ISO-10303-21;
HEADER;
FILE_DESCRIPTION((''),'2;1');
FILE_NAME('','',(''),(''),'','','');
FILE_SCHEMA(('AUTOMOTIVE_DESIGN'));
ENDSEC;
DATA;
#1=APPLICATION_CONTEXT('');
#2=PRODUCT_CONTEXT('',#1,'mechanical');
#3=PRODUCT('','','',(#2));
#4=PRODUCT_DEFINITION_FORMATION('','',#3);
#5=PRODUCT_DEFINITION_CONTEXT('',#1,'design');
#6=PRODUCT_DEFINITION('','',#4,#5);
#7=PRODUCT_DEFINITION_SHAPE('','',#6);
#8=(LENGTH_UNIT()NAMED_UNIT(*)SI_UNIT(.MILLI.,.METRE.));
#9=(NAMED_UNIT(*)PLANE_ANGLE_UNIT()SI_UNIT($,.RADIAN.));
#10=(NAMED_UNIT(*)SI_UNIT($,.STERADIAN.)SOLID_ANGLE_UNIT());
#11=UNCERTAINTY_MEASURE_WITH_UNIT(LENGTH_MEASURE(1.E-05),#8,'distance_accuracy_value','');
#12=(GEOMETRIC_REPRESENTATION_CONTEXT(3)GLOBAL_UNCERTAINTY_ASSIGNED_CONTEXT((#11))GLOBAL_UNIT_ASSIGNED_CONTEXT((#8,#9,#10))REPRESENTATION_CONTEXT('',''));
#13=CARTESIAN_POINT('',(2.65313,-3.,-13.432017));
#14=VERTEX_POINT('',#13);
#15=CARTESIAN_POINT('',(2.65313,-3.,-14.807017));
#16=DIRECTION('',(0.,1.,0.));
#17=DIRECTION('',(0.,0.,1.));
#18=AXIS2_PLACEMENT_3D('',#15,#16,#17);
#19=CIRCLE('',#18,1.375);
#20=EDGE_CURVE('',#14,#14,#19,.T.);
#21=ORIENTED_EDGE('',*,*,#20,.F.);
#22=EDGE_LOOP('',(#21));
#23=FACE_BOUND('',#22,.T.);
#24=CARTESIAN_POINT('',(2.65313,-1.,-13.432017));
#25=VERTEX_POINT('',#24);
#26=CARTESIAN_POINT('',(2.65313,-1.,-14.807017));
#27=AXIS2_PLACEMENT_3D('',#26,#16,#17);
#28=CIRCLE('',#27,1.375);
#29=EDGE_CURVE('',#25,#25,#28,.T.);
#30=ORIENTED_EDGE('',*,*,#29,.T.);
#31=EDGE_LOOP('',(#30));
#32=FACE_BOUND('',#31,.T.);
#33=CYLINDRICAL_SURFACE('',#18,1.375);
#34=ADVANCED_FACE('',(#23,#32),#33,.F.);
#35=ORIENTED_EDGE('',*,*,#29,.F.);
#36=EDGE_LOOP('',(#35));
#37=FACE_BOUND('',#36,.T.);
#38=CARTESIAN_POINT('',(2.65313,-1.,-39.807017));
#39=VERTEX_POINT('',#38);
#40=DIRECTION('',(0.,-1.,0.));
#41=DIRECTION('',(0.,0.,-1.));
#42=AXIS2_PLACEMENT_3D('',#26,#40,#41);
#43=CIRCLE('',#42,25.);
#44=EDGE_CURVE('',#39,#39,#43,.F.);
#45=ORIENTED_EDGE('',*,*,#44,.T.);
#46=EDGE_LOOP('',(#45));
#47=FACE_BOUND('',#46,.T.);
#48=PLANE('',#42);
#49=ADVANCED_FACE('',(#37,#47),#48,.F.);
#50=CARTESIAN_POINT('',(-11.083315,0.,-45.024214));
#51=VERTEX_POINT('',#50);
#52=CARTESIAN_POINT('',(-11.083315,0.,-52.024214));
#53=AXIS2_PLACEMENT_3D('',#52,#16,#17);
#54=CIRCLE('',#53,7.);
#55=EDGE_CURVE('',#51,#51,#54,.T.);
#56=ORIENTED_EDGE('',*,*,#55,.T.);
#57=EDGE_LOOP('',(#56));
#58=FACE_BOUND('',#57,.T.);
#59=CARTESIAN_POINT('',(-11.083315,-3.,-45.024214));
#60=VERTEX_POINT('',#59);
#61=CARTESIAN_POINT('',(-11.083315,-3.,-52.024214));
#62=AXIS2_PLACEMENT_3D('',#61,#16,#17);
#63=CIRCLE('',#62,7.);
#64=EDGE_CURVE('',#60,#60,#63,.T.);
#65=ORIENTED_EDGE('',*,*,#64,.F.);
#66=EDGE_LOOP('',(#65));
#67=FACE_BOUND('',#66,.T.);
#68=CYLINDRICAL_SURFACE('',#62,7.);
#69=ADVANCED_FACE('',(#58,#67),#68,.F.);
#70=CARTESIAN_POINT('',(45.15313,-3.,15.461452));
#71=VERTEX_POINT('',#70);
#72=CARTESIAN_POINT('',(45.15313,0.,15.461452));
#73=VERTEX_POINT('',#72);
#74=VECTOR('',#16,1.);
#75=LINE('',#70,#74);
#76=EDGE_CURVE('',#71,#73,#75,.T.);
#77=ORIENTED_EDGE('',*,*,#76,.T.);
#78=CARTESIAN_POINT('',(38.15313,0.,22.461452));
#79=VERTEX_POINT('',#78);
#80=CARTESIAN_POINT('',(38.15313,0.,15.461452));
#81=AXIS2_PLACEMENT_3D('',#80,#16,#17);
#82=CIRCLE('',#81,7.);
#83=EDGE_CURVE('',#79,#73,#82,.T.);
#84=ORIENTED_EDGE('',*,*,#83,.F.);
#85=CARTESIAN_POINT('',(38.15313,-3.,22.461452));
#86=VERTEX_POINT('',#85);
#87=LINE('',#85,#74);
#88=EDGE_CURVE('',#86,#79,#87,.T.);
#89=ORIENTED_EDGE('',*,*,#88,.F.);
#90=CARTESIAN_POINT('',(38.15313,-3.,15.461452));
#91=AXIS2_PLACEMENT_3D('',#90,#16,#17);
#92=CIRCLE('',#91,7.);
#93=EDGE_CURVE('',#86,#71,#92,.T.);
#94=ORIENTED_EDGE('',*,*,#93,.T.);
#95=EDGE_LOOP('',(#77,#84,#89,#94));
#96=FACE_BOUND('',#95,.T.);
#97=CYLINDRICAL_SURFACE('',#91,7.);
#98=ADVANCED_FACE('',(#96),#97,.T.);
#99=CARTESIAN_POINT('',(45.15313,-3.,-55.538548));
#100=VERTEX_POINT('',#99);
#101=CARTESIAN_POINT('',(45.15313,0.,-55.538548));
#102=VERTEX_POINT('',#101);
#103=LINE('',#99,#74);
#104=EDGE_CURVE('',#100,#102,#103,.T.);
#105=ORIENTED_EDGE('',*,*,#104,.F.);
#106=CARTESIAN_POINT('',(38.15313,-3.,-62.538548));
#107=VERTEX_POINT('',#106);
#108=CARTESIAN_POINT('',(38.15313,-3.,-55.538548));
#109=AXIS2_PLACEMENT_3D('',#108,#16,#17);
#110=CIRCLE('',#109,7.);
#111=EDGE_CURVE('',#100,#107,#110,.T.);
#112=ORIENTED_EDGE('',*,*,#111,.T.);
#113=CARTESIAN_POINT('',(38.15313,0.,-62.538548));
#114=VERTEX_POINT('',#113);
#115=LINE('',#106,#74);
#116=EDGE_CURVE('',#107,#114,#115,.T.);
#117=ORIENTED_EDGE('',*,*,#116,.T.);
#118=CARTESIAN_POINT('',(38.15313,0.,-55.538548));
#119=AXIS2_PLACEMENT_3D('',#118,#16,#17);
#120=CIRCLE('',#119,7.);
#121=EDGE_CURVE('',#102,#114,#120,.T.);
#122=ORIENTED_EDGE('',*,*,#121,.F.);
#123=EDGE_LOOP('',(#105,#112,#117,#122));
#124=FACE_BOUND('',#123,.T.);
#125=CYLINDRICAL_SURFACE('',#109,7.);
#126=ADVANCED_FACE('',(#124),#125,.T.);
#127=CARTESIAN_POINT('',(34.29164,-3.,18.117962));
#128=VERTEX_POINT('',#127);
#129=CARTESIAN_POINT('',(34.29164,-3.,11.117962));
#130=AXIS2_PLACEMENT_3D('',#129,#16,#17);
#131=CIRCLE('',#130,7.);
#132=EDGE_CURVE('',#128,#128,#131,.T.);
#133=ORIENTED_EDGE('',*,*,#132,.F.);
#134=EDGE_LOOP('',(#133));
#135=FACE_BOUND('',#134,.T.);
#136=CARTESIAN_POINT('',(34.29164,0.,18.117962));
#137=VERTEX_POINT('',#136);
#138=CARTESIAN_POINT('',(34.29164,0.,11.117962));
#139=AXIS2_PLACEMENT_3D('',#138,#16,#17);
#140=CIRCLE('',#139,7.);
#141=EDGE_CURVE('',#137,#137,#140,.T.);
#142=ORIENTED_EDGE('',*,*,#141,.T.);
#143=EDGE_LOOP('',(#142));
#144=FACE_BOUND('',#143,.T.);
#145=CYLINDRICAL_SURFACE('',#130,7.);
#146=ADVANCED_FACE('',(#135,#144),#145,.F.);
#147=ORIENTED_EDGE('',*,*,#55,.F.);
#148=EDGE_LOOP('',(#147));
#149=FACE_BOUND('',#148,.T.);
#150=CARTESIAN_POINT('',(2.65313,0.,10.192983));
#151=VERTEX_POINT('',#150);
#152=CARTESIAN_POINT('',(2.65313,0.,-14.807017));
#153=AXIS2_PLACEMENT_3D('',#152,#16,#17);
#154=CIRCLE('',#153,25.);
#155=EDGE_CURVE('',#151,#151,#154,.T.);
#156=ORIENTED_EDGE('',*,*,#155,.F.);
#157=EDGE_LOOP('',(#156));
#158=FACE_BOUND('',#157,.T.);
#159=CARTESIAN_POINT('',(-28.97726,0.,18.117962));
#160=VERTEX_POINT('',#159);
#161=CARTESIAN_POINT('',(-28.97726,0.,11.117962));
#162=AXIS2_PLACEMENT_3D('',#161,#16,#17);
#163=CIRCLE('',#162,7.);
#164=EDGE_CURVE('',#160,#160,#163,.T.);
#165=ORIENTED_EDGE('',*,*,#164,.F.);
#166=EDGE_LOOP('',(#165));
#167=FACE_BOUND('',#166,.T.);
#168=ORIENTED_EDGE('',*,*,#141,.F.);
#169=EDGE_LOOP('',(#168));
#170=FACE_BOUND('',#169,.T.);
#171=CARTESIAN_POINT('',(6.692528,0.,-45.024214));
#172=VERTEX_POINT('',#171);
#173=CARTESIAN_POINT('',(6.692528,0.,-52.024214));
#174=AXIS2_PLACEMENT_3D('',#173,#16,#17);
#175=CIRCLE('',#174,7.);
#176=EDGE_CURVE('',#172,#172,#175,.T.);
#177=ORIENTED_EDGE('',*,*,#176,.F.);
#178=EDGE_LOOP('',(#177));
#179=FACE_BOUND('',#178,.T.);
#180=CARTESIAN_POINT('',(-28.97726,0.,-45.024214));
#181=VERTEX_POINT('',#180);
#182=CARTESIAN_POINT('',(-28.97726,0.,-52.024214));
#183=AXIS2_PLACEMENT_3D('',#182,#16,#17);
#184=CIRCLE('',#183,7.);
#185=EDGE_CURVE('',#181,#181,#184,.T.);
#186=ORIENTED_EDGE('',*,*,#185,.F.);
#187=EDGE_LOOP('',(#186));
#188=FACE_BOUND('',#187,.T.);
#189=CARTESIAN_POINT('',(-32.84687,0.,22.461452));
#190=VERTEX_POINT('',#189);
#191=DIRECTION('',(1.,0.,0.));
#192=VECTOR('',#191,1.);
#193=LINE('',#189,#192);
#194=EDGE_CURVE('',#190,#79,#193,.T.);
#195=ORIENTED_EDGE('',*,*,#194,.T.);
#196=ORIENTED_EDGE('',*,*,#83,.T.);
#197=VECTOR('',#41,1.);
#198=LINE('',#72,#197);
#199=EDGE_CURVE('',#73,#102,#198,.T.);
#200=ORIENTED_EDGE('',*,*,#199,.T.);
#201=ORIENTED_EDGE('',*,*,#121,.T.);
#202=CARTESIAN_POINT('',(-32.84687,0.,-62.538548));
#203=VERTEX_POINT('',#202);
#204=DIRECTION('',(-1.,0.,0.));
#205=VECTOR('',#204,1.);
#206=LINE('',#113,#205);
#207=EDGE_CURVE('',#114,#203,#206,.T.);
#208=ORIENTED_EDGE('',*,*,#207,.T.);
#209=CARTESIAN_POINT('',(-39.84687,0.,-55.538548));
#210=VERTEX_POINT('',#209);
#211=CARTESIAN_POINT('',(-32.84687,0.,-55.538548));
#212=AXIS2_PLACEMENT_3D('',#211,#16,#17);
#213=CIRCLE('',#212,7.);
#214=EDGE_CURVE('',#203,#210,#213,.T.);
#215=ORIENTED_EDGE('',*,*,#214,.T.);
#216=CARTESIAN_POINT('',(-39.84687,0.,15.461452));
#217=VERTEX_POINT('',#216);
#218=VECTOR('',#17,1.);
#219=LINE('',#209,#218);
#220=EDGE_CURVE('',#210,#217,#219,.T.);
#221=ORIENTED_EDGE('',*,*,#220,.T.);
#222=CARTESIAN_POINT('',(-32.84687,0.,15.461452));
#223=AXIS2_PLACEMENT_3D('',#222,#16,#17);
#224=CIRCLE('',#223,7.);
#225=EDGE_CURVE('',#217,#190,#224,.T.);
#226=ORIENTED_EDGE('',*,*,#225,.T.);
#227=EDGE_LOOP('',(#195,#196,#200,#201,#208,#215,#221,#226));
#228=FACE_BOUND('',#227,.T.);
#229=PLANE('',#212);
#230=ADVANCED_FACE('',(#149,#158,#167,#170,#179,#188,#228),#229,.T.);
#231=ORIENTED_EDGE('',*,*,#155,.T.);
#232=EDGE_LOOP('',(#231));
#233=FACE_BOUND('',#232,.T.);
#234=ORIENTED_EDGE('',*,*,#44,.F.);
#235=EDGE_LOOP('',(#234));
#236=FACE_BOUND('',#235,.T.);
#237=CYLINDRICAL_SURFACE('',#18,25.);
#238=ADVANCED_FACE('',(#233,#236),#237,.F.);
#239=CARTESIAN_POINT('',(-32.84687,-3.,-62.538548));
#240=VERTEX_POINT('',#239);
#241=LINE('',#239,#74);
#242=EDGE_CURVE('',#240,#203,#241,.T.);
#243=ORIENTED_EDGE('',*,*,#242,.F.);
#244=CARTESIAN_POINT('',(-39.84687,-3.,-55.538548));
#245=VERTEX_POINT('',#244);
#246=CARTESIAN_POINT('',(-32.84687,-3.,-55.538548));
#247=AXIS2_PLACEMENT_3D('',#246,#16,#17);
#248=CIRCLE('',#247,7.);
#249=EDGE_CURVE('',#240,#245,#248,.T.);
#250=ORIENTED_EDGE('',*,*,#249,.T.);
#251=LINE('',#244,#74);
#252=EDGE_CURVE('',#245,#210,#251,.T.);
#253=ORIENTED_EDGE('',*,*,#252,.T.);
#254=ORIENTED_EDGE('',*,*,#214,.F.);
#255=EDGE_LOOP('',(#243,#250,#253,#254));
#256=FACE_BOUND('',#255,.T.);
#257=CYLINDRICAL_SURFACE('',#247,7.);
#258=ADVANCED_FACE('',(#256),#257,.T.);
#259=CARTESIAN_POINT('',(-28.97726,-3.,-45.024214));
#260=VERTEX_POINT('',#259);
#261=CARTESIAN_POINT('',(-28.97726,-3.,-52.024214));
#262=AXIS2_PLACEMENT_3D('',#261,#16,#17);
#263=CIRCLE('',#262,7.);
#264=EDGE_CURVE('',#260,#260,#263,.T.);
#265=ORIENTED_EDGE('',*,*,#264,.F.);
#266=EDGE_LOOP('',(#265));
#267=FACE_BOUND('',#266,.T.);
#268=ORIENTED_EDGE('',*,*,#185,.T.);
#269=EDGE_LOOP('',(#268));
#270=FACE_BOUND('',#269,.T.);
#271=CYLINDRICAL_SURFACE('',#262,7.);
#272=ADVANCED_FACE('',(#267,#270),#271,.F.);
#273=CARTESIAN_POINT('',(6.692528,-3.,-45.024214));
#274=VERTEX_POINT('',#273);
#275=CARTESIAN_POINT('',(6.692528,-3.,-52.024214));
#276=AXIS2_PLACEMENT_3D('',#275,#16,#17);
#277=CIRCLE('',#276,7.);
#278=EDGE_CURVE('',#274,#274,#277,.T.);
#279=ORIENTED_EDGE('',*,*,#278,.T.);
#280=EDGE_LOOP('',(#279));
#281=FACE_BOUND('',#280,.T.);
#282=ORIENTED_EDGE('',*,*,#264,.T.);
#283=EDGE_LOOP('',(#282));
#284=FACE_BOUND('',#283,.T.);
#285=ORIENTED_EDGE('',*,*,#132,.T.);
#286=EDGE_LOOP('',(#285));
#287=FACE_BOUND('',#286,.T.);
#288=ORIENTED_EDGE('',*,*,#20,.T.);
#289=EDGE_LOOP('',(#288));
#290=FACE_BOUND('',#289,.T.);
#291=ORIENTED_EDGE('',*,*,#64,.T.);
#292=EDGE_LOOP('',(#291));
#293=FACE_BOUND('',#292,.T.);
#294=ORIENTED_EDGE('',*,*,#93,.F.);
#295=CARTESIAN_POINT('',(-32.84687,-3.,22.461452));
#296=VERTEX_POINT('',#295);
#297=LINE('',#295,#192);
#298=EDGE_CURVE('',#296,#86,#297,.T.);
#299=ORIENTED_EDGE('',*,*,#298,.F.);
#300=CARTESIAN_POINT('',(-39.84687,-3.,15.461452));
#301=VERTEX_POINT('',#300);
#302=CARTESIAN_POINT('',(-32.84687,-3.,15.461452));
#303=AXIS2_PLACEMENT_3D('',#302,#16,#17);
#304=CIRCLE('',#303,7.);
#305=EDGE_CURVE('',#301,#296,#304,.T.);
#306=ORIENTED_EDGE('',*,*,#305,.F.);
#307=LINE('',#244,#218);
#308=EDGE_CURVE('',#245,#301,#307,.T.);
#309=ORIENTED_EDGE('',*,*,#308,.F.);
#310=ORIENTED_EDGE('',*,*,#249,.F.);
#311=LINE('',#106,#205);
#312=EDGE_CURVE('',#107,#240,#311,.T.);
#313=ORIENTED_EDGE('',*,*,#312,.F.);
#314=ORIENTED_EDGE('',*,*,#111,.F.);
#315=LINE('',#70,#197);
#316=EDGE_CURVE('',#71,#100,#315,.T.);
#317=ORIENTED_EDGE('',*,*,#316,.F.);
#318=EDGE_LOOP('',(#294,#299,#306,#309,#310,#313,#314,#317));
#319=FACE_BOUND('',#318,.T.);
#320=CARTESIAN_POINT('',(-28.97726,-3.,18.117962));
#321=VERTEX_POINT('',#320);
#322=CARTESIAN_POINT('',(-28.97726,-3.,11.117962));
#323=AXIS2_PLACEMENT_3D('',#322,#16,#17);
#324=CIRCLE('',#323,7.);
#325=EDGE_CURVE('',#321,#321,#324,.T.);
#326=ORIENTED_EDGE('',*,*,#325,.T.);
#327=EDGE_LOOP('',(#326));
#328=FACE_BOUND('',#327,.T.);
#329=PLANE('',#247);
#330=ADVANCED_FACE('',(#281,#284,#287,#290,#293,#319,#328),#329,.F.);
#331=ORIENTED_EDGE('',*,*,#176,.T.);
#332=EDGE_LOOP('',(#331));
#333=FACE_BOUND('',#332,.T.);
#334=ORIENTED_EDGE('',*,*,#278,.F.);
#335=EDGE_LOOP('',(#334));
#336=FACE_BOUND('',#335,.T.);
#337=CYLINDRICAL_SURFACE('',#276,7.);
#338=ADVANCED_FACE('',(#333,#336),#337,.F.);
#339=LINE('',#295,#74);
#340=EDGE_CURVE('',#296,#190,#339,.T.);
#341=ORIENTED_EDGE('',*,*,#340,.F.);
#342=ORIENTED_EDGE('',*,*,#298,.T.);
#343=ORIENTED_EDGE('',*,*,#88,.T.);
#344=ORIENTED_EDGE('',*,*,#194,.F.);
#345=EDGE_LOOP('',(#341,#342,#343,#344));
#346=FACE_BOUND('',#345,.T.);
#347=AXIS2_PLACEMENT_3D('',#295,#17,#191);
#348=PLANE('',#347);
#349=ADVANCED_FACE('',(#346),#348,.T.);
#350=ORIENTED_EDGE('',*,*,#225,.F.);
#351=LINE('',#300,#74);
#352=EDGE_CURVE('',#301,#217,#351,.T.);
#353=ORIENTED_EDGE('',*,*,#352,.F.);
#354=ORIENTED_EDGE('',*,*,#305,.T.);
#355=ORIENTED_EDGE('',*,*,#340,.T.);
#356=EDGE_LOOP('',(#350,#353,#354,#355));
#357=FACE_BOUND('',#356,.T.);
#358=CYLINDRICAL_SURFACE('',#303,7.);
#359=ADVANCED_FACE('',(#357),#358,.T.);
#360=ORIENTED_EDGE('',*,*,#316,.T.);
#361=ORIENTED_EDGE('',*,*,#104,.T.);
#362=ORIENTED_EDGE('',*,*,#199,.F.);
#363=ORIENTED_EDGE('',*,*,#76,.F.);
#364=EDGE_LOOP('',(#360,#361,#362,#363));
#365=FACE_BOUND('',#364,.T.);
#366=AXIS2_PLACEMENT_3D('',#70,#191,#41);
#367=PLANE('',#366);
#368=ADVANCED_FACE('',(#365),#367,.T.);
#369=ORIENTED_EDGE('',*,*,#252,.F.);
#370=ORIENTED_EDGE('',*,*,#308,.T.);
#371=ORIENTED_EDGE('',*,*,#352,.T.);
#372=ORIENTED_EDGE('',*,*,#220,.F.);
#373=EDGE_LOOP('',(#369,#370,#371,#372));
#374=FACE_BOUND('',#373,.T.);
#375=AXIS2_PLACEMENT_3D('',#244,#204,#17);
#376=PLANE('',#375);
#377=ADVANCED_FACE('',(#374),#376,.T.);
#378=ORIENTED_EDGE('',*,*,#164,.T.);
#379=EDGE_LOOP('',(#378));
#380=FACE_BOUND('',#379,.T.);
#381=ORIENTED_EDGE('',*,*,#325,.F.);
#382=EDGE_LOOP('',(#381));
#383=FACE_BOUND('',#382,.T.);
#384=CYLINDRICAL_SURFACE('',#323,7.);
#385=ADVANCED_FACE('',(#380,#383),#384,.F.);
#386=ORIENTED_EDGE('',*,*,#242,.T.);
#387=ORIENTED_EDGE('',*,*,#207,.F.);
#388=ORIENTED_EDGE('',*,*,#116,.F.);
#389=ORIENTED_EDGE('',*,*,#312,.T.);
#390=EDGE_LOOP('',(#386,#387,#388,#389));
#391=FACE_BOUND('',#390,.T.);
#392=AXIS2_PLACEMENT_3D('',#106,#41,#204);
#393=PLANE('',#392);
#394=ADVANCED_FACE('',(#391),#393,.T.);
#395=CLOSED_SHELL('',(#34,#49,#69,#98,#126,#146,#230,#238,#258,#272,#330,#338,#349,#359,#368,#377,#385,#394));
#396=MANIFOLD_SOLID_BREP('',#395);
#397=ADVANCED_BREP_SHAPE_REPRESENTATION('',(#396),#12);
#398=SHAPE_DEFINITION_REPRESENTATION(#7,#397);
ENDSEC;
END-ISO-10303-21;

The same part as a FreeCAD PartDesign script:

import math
import FreeCAD as App
import Part
import Sketcher
from FreeCAD import Vector

doc = App.newDocument("Part")
params = doc.addObject("Spreadsheet::Sheet", "Params")
for row, (alias, value) in enumerate([
    ("sketch1_diameter", "14 mm"),
    ("sketch1_diameter2", "50 mm"),
    ("sketch1_width", "71 mm"),
    ("pad1_length", "3 mm"),
    ("sketch2_diameter", "50 mm"),
    ("pad2_length", "2 mm"),
    ("sketch3_diameter", "2.75 mm"),
    ("pocket1_length", "2 mm"),
], start=1):
    params.set(f"A{row}", alias)
    params.set(f"B{row}", "=" + value)
    params.setAlias(f"B{row}", alias)

body = doc.addObject("PartDesign::Body", "Body")

# Sketch on XZ plane
sketch1 = body.newObject("Sketcher::SketchObject", "Sketch")
sketch1.AttachmentSupport = (doc.getObject("XZ_Plane"), [""])
sketch1.MapMode = "FlatFace"
sketch1.addGeometry(Part.LineSegment(Vector(-33, 22, 0), Vector(38, 22, 0)), False)
sketch1.addGeometry(Part.ArcOfCircle(Part.Circle(Vector(38, 15, 0), Vector(0, 0, 1), 7), math.radians(0), math.radians(90)), False)
sketch1.addGeometry(Part.LineSegment(Vector(45, 15, 0), Vector(45, -56, 0)), False)
sketch1.addGeometry(Part.ArcOfCircle(Part.Circle(Vector(38, -56, 0), Vector(0, 0, 1), 7), math.radians(-90), math.radians(0)), False)
sketch1.addGeometry(Part.LineSegment(Vector(38, -63, 0), Vector(-33, -63, 0)), False)
sketch1.addGeometry(Part.ArcOfCircle(Part.Circle(Vector(-33, -56, 0), Vector(0, 0, 1), 7), math.radians(180), math.radians(270)), False)
sketch1.addGeometry(Part.LineSegment(Vector(-40, -56, 0), Vector(-40, 15, 0)), False)
sketch1.addGeometry(Part.ArcOfCircle(Part.Circle(Vector(-33, 15, 0), Vector(0, 0, 1), 7), math.radians(90), math.radians(180)), False)
sketch1.addGeometry(Part.Circle(Vector(-29, 11, 0), Vector(0, 0, 1), 7), False)
sketch1.addGeometry(Part.Circle(Vector(3, -15, 0), Vector(0, 0, 1), 25), False)
sketch1.addGeometry(Part.Circle(Vector(34, 11, 0), Vector(0, 0, 1), 7), False)
sketch1.addGeometry(Part.Circle(Vector(-29, -52, 0), Vector(0, 0, 1), 7), False)
sketch1.addGeometry(Part.Circle(Vector(-11, -52, 0), Vector(0, 0, 1), 7), False)
sketch1.addGeometry(Part.Circle(Vector(7, -52, 0), Vector(0, 0, 1), 7), False)
sketch1.addConstraint(Sketcher.Constraint("Tangent", 0, 2, 1, 2))
sketch1.addConstraint(Sketcher.Constraint("Tangent", 1, 1, 2, 1))
sketch1.addConstraint(Sketcher.Constraint("Tangent", 2, 2, 3, 2))
sketch1.addConstraint(Sketcher.Constraint("Tangent", 3, 1, 4, 1))
sketch1.addConstraint(Sketcher.Constraint("Tangent", 4, 2, 5, 2))
sketch1.addConstraint(Sketcher.Constraint("Tangent", 5, 1, 6, 1))
sketch1.addConstraint(Sketcher.Constraint("Tangent", 6, 2, 7, 2))
sketch1.addConstraint(Sketcher.Constraint("Tangent", 7, 1, 0, 1))
sketch1.addConstraint(Sketcher.Constraint("Horizontal", 0))
sketch1.addConstraint(Sketcher.Constraint("Vertical", 2))
sketch1.addConstraint(Sketcher.Constraint("Horizontal", 4))
sketch1.addConstraint(Sketcher.Constraint("Vertical", 6))
sketch1.addConstraint(Sketcher.Constraint("Equal", 1, 3))
sketch1.addConstraint(Sketcher.Constraint("Equal", 3, 5))
sketch1.addConstraint(Sketcher.Constraint("Equal", 5, 7))
sketch1.addConstraint(Sketcher.Constraint("Equal", 7, 8))
sketch1.addConstraint(Sketcher.Constraint("Equal", 8, 10))
sketch1.addConstraint(Sketcher.Constraint("Equal", 10, 11))
sketch1.addConstraint(Sketcher.Constraint("Equal", 11, 12))
sketch1.addConstraint(Sketcher.Constraint("Equal", 12, 13))
sketch1.addConstraint(Sketcher.Constraint("Horizontal", 8, 3, 10, 3))
sketch1.addConstraint(Sketcher.Constraint("Horizontal", 11, 3, 12, 3))
sketch1.addConstraint(Sketcher.Constraint("Horizontal", 12, 3, 13, 3))
sketch1.addConstraint(Sketcher.Constraint("Vertical", 8, 3, 11, 3))
sketch1.addConstraint(Sketcher.Constraint("Equal", 4, 2))
sketch1.addConstraint(Sketcher.Constraint("Diameter", 8, 14.0))
sketch1.addConstraint(Sketcher.Constraint("Diameter", 9, 50.0))
sketch1.addConstraint(Sketcher.Constraint("DistanceX", 0, 1, 0, 2, 71.0))
sketch1.addConstraint(Sketcher.Constraint("DistanceX", 9, 3, 1, 3, 35.5))
sketch1.addConstraint(Sketcher.Constraint("DistanceX", 8, 3, 10, 3, 63.2689))
sketch1.addConstraint(Sketcher.Constraint("DistanceX", -1, 1, 1, 3, 38.15313))
sketch1.addConstraint(Sketcher.Constraint("DistanceY", -1, 1, 1, 3, 15.461452))
sketch1.addConstraint(Sketcher.Constraint("DistanceX", 8, 3, -1, 1, 28.97726))
sketch1.addConstraint(Sketcher.Constraint("DistanceX", -1, 1, 13, 3, 6.692528))
sketch1.addConstraint(Sketcher.Constraint("DistanceY", 8, 3, 7, 3, 4.34349))
sketch1.addConstraint(Sketcher.Constraint("DistanceY", 9, 3, 8, 3, 25.92498))
sketch1.addConstraint(Sketcher.Constraint("DistanceY", 11, 3, -1, 1, 52.024214))
sketch1.addConstraint(Sketcher.Constraint("DistanceX", 12, 3, -1, 1, 11.083315))
sketch1.setExpression("Constraints[25]", "Params.sketch1_diameter")
sketch1.setExpression("Constraints[26]", "Params.sketch1_diameter2")
sketch1.setExpression("Constraints[27]", "Params.sketch1_width")
pad1 = body.newObject("PartDesign::Pad", "Pad")
pad1.Profile = sketch1
pad1.setExpression("Length", "Params.pad1_length")

# Sketch on XZ plane
sketch2 = body.newObject("Sketcher::SketchObject", "Sketch001")
sketch2.AttachmentSupport = (doc.getObject("XZ_Plane"), [""])
sketch2.MapMode = "FlatFace"
sketch2.AttachmentOffset = App.Placement(Vector(0, 0, 1), App.Rotation())
sketch2.addGeometry(Part.Circle(Vector(3, -15, 0), Vector(0, 0, 1), 25), False)
sketch2.addConstraint(Sketcher.Constraint("Diameter", 0, 50.0))
sketch2.addConstraint(Sketcher.Constraint("DistanceX", -1, 1, 0, 3, 2.65313))
sketch2.addConstraint(Sketcher.Constraint("DistanceY", 0, 3, -1, 1, 14.807017))
sketch2.setExpression("Constraints[0]", "Params.sketch2_diameter")
pad2 = body.newObject("PartDesign::Pad", "Pad001")
pad2.Profile = sketch2
pad2.setExpression("Length", "Params.pad2_length")

# Sketch on XZ plane
sketch3 = body.newObject("Sketcher::SketchObject", "Sketch002")
sketch3.AttachmentSupport = (doc.getObject("XZ_Plane"), [""])
sketch3.MapMode = "FlatFace"
sketch3.AttachmentOffset = App.Placement(Vector(0, 0, 1), App.Rotation())
sketch3.addGeometry(Part.Circle(Vector(2.7, -14.8, 0), Vector(0, 0, 1), 1.4), False)
sketch3.addConstraint(Sketcher.Constraint("Diameter", 0, 2.75))
sketch3.addConstraint(Sketcher.Constraint("DistanceX", -1, 1, 0, 3, 2.65313))
sketch3.addConstraint(Sketcher.Constraint("DistanceY", 0, 3, -1, 1, 14.807017))
sketch3.setExpression("Constraints[0]", "Params.sketch3_diameter")
pocket1 = body.newObject("PartDesign::Pocket", "Pocket")
pocket1.Profile = sketch3
pocket1.setExpression("Length", "Params.pocket1_length")
pocket1.Reversed = True

doc.recompute()
